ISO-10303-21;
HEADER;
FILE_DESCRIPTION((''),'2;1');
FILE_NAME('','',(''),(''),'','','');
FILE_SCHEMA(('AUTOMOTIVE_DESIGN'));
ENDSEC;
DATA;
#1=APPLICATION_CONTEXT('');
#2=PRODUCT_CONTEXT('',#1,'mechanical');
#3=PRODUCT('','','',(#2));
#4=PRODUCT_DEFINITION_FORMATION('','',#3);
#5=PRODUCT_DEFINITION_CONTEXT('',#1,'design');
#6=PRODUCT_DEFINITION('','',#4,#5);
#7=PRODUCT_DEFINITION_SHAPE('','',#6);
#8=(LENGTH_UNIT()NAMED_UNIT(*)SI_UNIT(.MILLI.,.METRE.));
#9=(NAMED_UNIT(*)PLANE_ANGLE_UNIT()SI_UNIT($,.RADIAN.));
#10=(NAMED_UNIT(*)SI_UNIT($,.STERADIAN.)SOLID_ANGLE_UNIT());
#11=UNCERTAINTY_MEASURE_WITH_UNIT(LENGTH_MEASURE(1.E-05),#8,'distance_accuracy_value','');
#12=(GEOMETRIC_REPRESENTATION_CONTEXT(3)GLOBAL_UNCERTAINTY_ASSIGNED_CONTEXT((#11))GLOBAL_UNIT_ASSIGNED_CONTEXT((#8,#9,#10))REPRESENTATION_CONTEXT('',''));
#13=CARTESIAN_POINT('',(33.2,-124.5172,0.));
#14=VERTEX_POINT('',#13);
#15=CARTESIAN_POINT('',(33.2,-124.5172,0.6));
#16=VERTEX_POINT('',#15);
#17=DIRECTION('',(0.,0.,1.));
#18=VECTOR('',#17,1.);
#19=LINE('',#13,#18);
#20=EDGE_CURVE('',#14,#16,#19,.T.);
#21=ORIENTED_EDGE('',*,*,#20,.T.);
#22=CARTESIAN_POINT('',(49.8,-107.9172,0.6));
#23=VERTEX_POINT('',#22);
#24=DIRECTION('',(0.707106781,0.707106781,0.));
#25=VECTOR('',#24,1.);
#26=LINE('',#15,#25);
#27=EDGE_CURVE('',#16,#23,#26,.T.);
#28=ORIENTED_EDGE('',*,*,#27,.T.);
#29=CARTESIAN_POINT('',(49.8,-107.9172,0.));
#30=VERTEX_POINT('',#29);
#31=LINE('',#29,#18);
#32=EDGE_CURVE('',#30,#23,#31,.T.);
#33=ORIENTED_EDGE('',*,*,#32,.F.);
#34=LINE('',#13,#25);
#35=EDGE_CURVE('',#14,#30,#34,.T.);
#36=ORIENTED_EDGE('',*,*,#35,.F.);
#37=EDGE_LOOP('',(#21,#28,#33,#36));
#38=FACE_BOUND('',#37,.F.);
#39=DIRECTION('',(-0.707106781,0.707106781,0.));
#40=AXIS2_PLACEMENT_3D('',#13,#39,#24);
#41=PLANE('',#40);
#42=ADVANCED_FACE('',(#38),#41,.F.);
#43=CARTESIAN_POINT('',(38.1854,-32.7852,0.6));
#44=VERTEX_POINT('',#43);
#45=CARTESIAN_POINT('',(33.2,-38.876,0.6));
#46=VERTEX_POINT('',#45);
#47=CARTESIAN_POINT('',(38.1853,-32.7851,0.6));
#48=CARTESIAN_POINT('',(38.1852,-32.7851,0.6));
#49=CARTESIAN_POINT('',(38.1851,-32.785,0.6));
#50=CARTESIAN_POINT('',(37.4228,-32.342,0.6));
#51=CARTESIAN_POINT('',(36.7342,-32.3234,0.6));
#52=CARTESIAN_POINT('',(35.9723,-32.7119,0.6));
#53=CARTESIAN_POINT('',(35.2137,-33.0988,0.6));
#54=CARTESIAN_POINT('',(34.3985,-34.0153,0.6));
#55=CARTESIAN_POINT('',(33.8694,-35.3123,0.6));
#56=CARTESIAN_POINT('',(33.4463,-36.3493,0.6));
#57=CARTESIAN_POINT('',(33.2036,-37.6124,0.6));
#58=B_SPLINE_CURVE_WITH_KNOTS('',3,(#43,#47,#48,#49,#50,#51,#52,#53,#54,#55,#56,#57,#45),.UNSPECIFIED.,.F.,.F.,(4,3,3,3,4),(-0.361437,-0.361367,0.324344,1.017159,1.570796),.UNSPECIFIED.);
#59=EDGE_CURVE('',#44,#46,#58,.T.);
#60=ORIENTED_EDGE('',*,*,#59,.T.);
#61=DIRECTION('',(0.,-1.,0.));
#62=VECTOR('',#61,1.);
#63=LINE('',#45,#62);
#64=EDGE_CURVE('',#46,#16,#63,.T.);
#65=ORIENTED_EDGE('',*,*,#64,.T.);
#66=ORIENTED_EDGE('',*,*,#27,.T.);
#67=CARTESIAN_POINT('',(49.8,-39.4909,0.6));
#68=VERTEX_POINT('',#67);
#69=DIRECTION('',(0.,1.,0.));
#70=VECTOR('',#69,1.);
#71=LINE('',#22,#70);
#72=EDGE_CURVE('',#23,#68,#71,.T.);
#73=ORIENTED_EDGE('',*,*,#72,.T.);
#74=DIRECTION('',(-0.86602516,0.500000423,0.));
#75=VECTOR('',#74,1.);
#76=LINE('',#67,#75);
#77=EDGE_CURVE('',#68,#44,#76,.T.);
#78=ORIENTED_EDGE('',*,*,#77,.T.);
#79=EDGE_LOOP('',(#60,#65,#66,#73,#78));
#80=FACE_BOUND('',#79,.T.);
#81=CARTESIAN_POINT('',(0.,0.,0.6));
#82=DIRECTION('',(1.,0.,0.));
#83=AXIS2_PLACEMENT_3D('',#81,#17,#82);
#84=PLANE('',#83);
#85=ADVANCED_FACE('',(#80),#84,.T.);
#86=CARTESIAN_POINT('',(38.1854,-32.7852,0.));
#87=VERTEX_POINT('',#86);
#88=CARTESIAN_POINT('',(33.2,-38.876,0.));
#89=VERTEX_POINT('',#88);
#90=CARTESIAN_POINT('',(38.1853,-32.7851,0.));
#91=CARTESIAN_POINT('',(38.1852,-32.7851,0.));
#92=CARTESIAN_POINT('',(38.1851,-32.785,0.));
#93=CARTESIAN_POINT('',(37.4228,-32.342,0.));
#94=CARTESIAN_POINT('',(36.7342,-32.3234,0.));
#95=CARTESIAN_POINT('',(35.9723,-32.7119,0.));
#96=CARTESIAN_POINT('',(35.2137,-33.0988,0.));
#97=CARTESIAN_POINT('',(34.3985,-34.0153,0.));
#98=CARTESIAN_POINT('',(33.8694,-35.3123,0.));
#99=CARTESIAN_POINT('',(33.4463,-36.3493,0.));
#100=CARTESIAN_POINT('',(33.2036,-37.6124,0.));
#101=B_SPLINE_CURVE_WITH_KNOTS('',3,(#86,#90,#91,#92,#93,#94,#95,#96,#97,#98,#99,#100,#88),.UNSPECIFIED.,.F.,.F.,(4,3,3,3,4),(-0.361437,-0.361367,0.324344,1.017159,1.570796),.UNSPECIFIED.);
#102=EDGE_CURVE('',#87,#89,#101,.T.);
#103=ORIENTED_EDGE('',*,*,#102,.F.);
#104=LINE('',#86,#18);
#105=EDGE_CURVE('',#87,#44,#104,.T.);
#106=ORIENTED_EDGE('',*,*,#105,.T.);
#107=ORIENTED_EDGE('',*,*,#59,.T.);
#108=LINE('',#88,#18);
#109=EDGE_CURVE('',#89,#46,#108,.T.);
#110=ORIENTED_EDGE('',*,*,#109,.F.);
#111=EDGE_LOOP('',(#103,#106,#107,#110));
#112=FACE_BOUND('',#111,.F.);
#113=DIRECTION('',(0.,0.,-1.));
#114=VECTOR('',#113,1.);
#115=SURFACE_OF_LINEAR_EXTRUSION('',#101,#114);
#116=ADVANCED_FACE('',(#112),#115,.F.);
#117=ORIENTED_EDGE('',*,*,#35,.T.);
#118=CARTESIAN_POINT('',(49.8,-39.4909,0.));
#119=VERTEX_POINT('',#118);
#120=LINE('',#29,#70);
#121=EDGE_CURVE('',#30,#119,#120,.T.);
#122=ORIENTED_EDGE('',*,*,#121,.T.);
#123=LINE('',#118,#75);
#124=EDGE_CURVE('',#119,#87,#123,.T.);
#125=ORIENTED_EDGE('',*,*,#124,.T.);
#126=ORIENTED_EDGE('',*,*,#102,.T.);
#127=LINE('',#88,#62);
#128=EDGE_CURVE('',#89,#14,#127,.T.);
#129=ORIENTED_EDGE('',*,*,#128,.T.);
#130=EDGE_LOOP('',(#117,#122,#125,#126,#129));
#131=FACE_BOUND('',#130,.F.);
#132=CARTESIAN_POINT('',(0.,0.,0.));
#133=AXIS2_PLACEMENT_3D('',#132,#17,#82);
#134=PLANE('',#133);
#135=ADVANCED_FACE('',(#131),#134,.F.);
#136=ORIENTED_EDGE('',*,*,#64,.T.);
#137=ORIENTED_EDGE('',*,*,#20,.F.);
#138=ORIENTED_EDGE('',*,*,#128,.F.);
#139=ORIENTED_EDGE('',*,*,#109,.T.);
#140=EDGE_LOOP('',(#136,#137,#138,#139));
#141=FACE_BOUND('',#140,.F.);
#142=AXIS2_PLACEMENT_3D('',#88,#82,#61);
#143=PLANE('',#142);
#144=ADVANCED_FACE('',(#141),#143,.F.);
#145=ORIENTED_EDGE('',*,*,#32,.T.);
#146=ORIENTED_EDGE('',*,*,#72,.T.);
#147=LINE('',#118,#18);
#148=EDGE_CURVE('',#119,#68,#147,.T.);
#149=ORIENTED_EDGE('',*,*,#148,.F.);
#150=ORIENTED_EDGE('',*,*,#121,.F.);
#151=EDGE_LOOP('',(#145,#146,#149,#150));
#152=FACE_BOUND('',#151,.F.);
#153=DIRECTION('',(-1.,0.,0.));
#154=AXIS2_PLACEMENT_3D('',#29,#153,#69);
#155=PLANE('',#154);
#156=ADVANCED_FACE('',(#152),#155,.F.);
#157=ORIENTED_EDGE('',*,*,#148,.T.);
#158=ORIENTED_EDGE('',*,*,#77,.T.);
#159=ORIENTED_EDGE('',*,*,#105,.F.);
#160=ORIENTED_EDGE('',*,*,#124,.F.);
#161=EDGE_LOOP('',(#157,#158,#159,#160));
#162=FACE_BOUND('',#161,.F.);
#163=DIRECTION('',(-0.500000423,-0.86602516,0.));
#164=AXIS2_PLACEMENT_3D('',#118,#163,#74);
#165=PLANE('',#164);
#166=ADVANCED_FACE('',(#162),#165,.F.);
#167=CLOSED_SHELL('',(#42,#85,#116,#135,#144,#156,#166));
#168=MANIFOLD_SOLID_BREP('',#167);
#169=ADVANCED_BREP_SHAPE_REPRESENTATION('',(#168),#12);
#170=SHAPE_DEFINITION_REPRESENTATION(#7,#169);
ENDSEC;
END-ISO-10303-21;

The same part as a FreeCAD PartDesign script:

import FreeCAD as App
import Part
import Sketcher
from FreeCAD import Vector
Q = App.Units.Quantity

doc = App.newDocument("Part")
body = doc.addObject("PartDesign::Body", "Body")

sketch1 = body.newObject("Sketcher::SketchObject", "Sketch")
sketch1.AttachmentSupport = (doc.getObject("XY_Plane"), [""])
sketch1.MapMode = "FlatFace"
sketch1.addGeometry([
    Part.LineSegment(Vector(33.2, -124.5172, 0), Vector(49.8, -107.9172, 0)),
    Part.LineSegment(Vector(49.8, -107.9172, 0), Vector(49.8, -39.4909, 0)),
    Part.LineSegment(Vector(49.8, -39.4909, 0), Vector(38.1854, -32.7852, 0)),
    Part.BSplineCurve([Vector(38.1854, -32.7852, 0), Vector(38.1853, -32.7851, 0), Vector(38.1852, -32.7851, 0), Vector(38.1851, -32.785, 0), Vector(37.4228, -32.342, 0), Vector(36.7342, -32.3234, 0), Vector(35.9723, -32.7119, 0), Vector(35.2137, -33.0988, 0), Vector(34.3985, -34.0153, 0), Vector(33.8694, -35.3123, 0), Vector(33.4463, -36.3493, 0), Vector(33.2036, -37.6124, 0), Vector(33.2, -38.876, 0)], [4, 3, 3, 3, 4], [-0.361437, -0.361367, 0.324344, 1.017159, 1.570796], False, 3, [1, 1, 1, 1, 1, 1, 1, 1, 1, 1, 1, 1, 1], False),
    Part.LineSegment(Vector(33.2, -38.876, 0), Vector(33.2, -124.5172, 0)),
], False)
sketch1.addConstraint([
    Sketcher.Constraint("Block", 3),
    Sketcher.Constraint("Coincident", 0, 2, 1, 1),
    Sketcher.Constraint("Coincident", 1, 2, 2, 1),
    Sketcher.Constraint("Coincident", 2, 2, 3, 1),
    Sketcher.Constraint("Coincident", 3, 2, 4, 1),
    Sketcher.Constraint("Coincident", 4, 2, 0, 1),
    Sketcher.Constraint("Vertical", 1),
    Sketcher.Constraint("Vertical", 4),
    Sketcher.Constraint("Angle", 0, Q("45 deg")),
    Sketcher.Constraint("Angle", 2, Q("150 deg")),
    Sketcher.Constraint("DistanceX", -1, 1, 0, 2, Q("49.8 mm")),
    Sketcher.Constraint("DistanceY", 1, 1, 1, 2, Q("68.4263 mm")),
])
pad1 = body.newObject("PartDesign::Pad", "Pad")
pad1.Profile = sketch1
pad1.Length = 0.6

doc.recompute()
